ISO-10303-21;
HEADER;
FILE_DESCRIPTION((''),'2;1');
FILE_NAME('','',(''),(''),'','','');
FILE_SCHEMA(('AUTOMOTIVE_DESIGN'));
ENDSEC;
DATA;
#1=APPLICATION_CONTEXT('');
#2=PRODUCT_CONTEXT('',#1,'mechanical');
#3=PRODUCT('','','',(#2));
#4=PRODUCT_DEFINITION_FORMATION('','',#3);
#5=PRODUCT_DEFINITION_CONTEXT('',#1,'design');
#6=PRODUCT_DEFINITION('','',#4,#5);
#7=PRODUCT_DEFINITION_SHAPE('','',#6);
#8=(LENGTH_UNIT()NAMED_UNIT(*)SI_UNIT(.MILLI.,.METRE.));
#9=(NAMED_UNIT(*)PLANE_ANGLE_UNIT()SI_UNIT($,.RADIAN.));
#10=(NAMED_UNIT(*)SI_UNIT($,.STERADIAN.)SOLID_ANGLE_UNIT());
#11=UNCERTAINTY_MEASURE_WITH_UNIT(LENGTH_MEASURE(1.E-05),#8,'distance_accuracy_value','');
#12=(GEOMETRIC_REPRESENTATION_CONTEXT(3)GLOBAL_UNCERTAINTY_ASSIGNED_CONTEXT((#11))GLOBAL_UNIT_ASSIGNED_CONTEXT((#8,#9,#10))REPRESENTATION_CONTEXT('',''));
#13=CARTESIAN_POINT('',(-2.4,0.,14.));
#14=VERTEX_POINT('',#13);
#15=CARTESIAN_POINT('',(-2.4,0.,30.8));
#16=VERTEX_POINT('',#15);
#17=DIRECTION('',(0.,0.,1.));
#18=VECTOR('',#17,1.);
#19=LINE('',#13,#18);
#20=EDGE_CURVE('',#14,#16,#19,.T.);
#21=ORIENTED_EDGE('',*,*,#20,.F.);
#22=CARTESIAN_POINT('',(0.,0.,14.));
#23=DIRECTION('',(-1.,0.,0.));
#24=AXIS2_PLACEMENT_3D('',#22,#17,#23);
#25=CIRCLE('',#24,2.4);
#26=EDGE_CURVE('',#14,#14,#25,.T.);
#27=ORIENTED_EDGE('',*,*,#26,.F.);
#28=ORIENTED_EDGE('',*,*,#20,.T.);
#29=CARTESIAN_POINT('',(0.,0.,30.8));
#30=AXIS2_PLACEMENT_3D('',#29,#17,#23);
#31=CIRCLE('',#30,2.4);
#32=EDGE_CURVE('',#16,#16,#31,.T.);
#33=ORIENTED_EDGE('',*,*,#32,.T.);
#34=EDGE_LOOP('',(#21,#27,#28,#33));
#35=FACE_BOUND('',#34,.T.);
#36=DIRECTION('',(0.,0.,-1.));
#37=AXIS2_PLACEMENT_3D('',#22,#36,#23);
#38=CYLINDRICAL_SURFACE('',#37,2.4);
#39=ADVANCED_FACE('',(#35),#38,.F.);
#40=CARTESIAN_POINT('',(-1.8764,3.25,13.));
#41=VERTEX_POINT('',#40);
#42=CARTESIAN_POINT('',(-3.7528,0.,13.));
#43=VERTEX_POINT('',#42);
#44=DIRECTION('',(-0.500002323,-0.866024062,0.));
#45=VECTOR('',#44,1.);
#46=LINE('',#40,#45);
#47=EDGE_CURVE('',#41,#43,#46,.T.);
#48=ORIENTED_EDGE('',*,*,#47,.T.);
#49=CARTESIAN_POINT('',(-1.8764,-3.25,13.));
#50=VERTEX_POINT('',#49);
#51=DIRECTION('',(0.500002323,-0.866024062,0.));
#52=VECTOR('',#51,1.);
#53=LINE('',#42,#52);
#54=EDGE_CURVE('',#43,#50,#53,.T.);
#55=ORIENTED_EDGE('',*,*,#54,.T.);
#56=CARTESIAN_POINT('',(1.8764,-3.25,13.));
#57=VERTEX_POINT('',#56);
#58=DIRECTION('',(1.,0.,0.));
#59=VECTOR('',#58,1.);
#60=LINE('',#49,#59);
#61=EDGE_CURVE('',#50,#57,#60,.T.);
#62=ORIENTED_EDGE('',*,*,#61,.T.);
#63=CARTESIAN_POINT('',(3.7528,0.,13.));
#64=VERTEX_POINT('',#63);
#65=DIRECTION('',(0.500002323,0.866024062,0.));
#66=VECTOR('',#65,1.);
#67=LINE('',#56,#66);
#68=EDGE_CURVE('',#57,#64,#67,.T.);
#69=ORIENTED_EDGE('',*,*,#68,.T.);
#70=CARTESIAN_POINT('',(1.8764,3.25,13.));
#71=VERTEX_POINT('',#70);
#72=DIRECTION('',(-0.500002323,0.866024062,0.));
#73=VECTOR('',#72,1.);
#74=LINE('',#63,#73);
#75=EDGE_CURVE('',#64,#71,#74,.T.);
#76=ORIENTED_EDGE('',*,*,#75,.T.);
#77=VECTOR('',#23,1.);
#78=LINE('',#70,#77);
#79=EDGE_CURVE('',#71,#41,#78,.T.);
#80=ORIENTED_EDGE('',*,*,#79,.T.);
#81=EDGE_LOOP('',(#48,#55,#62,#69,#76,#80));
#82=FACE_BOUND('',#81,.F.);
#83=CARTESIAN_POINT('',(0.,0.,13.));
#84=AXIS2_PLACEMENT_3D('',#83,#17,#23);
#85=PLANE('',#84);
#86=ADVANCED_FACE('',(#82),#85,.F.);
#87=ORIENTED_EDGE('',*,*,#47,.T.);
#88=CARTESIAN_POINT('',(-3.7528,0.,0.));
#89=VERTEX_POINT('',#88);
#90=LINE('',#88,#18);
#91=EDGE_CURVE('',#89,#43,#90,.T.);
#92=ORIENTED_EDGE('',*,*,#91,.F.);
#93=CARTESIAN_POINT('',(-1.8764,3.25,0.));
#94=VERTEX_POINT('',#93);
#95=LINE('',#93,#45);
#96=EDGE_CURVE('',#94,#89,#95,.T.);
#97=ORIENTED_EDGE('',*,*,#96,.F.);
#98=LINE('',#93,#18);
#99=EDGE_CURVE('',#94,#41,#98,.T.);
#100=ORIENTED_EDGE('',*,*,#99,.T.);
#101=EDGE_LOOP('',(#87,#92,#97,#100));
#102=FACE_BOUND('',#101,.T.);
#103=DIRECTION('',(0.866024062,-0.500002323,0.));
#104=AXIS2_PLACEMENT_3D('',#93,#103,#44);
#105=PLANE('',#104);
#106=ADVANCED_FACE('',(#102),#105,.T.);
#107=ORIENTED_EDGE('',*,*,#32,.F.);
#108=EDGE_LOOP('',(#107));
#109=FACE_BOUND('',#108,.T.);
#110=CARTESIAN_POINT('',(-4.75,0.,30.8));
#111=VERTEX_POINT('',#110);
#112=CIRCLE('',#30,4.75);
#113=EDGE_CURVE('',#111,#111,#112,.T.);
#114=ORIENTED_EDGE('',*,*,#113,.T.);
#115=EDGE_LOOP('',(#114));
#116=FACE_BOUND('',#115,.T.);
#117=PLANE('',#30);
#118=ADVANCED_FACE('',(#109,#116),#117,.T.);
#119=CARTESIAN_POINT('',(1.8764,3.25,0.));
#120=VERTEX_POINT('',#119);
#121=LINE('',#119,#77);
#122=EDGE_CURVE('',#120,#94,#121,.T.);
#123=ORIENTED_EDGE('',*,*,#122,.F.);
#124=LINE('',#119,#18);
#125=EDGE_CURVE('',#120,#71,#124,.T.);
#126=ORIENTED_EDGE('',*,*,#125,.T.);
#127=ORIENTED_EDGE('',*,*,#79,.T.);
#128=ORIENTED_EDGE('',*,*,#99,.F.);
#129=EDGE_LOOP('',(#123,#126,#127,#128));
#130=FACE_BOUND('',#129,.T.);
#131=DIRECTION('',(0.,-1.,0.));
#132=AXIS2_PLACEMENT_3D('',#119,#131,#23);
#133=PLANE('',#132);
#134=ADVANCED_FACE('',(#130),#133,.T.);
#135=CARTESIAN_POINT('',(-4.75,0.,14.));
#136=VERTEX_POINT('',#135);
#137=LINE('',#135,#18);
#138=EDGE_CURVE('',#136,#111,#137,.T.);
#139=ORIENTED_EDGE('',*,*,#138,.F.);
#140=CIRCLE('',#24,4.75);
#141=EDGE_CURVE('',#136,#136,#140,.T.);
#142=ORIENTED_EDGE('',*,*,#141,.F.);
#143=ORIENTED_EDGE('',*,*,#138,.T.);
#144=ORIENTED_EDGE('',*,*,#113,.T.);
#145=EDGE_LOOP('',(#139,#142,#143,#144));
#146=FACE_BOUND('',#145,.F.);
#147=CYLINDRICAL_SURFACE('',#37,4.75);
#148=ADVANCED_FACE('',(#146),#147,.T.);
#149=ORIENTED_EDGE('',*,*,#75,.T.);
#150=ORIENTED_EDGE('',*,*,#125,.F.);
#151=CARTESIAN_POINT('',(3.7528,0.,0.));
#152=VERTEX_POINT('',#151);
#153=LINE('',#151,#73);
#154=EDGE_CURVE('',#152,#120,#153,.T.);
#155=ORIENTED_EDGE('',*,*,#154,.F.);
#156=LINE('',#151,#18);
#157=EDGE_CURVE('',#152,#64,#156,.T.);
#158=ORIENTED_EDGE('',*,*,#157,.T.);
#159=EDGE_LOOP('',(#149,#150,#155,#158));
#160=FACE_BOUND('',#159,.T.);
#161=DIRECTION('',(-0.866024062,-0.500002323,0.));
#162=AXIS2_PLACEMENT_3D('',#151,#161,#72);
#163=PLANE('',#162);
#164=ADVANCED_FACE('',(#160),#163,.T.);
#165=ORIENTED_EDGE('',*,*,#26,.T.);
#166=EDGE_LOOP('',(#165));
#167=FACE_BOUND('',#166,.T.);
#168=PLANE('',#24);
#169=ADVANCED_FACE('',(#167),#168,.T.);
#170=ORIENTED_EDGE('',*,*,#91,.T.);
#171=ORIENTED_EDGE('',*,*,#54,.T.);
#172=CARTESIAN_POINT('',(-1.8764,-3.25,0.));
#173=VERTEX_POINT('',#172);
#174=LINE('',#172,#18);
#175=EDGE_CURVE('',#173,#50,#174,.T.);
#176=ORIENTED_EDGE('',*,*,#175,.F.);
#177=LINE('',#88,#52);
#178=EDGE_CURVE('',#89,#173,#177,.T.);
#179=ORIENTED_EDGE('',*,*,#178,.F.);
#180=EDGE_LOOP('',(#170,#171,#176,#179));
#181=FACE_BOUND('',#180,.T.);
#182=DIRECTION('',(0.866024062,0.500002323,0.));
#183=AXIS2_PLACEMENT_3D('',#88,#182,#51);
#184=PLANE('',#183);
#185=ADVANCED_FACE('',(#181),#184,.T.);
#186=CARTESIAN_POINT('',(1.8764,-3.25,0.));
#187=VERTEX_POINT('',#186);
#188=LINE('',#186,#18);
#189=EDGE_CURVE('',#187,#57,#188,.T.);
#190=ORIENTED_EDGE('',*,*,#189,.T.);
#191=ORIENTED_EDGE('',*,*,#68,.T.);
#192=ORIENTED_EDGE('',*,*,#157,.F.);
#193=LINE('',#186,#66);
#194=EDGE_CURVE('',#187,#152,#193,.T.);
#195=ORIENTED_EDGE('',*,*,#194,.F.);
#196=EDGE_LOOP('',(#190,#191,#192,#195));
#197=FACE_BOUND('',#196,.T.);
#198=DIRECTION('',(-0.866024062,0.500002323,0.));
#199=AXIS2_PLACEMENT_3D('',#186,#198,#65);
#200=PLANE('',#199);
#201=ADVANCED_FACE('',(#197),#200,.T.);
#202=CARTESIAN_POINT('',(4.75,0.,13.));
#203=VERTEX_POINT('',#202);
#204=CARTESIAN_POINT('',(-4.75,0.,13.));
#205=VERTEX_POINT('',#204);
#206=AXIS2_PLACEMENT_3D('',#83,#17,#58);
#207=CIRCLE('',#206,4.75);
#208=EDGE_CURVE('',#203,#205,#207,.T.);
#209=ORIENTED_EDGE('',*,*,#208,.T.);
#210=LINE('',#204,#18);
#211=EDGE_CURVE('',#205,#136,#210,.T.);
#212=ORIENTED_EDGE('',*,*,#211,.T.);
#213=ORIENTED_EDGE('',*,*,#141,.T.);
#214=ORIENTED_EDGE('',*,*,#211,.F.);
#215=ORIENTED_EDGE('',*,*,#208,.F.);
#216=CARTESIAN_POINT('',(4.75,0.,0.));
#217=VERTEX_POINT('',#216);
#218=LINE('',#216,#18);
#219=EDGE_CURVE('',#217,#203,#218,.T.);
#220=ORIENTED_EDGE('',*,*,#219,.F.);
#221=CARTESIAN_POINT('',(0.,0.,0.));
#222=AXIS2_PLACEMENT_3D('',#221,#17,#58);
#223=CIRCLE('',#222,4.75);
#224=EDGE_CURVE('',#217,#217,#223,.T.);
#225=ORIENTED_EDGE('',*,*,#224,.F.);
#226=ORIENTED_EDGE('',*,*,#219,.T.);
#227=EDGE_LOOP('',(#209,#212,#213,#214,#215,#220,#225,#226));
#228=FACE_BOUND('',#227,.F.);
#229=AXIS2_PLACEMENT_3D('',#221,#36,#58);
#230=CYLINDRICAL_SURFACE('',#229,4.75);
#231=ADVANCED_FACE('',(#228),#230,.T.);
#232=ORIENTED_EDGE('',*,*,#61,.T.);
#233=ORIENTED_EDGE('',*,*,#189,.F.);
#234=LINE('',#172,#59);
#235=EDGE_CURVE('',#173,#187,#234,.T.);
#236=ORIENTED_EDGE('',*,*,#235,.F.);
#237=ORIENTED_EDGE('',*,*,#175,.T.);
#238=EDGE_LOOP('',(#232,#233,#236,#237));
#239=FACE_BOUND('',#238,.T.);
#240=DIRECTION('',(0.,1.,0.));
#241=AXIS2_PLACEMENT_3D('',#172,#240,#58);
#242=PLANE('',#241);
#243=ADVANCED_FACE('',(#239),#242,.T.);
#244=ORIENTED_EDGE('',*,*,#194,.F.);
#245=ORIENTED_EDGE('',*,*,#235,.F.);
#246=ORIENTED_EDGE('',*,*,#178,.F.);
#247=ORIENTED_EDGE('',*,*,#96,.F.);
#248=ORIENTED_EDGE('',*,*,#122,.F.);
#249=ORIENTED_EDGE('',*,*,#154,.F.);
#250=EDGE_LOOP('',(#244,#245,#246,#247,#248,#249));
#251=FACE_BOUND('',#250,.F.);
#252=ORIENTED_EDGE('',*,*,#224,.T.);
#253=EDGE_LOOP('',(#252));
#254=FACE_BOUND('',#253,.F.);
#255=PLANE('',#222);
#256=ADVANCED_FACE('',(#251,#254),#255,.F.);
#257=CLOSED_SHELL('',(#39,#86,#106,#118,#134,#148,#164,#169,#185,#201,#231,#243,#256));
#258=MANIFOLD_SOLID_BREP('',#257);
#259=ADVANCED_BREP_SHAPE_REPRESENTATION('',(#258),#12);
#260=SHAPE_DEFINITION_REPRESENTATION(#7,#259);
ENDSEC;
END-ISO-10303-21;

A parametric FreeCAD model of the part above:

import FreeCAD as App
import Part
import Sketcher
from FreeCAD import Vector
Q = App.Units.Quantity

doc = App.newDocument("Part")
body = doc.addObject("PartDesign::Body", "Body")

sketch1 = body.newObject("Sketcher::SketchObject", "Sketch")
sketch1.AttachmentSupport = (doc.getObject("XY_Plane"), [""])
sketch1.MapMode = "FlatFace"
sketch1.addGeometry([
    Part.Circle(Vector(0, 0, 0), Vector(0, 0, 1), 4.8),
    Part.LineSegment(Vector(3.8, 0, 0), Vector(1.9, -3.2, 0)),
    Part.LineSegment(Vector(1.9, -3.2, 0), Vector(-1.9, -3.2, 0)),
    Part.LineSegment(Vector(-1.9, -3.2, 0), Vector(-3.8, 0, 0)),
    Part.LineSegment(Vector(-3.8, 0, 0), Vector(-1.9, 3.2, 0)),
    Part.LineSegment(Vector(-1.9, 3.2, 0), Vector(1.9, 3.2, 0)),
    Part.LineSegment(Vector(1.9, 3.2, 0), Vector(3.8, 0, 0)),
], False)
sketch1.addConstraint([
    Sketcher.Constraint("Coincident", 1, 2, 2, 1),
    Sketcher.Constraint("Coincident", 2, 2, 3, 1),
    Sketcher.Constraint("Coincident", 3, 2, 4, 1),
    Sketcher.Constraint("Coincident", 4, 2, 5, 1),
    Sketcher.Constraint("Coincident", 5, 2, 6, 1),
    Sketcher.Constraint("Coincident", 6, 2, 1, 1),
    Sketcher.Constraint("Horizontal", 2),
    Sketcher.Constraint("Horizontal", 5),
    Sketcher.Constraint("Coincident", 0, 3, -1, 1),
    Sketcher.Constraint("Symmetric", 1, 2, 4, 2, -1, 1),
    Sketcher.Constraint("Symmetric", 3, 2, 6, 2, -1, 1),
    Sketcher.Constraint("PointOnObject", 3, 2, -1),
    Sketcher.Constraint("Parallel", 3, 6),
    Sketcher.Constraint("Vertical", 2, 2, 4, 2),
    Sketcher.Constraint("Diameter", 0, Q("9.5 mm")),
    Sketcher.Constraint("DistanceY", 1, 2, -1, 1, Q("3.25 mm")),
    Sketcher.Constraint("Angle", 1, Q("-120.0002 deg")),
    Sketcher.Constraint("DistanceX", 2, 2, 2, 1, Q("3.7528 mm")),
])
pad1 = body.newObject("PartDesign::Pad", "Pad")
pad1.Profile = sketch1
pad1.Length = 13

sketch2 = body.newObject("Sketcher::SketchObject", "Sketch001")
sketch2.AttachmentSupport = (doc.getObject("XY_Plane"), [""])
sketch2.MapMode = "FlatFace"
sketch2.AttachmentOffset = App.Placement(Vector(0, 0, 13), App.Rotation())
sketch2.addGeometry(Part.Circle(Vector(0, 0, 0), Vector(0, 0, 1), 4.8), False)
sketch2.addConstraint([
    Sketcher.Constraint("Coincident", 0, 3, -1, 1),
    Sketcher.Constraint("Diameter", 0, Q("9.5 mm")),
])
pad2 = body.newObject("PartDesign::Pad", "Pad001")
pad2.Profile = sketch2
pad2.Length = 1

sketch3 = body.newObject("Sketcher::SketchObject", "Sketch002")
sketch3.AttachmentSupport = (doc.getObject("XY_Plane"), [""])
sketch3.MapMode = "FlatFace"
sketch3.AttachmentOffset = App.Placement(Vector(0, 0, 14), App.Rotation())
sketch3.addGeometry([
    Part.Circle(Vector(0, 0, 0), Vector(0, 0, 1), 4.8),
    Part.Circle(Vector(0, 0, 0), Vector(0, 0, 1), 2.4),
], False)
sketch3.addConstraint([
    Sketcher.Constraint("Coincident", 0, 3, -1, 1),
    Sketcher.Constraint("Coincident", 1, 3, -1, 1),
    Sketcher.Constraint("Diameter", 1, Q("4.8 mm")),
    Sketcher.Constraint("Diameter", 0, Q("9.5 mm")),
])
pad3 = body.newObject("PartDesign::Pad", "Pad002")
pad3.Profile = sketch3
pad3.Length = 16.8

doc.recompute()
